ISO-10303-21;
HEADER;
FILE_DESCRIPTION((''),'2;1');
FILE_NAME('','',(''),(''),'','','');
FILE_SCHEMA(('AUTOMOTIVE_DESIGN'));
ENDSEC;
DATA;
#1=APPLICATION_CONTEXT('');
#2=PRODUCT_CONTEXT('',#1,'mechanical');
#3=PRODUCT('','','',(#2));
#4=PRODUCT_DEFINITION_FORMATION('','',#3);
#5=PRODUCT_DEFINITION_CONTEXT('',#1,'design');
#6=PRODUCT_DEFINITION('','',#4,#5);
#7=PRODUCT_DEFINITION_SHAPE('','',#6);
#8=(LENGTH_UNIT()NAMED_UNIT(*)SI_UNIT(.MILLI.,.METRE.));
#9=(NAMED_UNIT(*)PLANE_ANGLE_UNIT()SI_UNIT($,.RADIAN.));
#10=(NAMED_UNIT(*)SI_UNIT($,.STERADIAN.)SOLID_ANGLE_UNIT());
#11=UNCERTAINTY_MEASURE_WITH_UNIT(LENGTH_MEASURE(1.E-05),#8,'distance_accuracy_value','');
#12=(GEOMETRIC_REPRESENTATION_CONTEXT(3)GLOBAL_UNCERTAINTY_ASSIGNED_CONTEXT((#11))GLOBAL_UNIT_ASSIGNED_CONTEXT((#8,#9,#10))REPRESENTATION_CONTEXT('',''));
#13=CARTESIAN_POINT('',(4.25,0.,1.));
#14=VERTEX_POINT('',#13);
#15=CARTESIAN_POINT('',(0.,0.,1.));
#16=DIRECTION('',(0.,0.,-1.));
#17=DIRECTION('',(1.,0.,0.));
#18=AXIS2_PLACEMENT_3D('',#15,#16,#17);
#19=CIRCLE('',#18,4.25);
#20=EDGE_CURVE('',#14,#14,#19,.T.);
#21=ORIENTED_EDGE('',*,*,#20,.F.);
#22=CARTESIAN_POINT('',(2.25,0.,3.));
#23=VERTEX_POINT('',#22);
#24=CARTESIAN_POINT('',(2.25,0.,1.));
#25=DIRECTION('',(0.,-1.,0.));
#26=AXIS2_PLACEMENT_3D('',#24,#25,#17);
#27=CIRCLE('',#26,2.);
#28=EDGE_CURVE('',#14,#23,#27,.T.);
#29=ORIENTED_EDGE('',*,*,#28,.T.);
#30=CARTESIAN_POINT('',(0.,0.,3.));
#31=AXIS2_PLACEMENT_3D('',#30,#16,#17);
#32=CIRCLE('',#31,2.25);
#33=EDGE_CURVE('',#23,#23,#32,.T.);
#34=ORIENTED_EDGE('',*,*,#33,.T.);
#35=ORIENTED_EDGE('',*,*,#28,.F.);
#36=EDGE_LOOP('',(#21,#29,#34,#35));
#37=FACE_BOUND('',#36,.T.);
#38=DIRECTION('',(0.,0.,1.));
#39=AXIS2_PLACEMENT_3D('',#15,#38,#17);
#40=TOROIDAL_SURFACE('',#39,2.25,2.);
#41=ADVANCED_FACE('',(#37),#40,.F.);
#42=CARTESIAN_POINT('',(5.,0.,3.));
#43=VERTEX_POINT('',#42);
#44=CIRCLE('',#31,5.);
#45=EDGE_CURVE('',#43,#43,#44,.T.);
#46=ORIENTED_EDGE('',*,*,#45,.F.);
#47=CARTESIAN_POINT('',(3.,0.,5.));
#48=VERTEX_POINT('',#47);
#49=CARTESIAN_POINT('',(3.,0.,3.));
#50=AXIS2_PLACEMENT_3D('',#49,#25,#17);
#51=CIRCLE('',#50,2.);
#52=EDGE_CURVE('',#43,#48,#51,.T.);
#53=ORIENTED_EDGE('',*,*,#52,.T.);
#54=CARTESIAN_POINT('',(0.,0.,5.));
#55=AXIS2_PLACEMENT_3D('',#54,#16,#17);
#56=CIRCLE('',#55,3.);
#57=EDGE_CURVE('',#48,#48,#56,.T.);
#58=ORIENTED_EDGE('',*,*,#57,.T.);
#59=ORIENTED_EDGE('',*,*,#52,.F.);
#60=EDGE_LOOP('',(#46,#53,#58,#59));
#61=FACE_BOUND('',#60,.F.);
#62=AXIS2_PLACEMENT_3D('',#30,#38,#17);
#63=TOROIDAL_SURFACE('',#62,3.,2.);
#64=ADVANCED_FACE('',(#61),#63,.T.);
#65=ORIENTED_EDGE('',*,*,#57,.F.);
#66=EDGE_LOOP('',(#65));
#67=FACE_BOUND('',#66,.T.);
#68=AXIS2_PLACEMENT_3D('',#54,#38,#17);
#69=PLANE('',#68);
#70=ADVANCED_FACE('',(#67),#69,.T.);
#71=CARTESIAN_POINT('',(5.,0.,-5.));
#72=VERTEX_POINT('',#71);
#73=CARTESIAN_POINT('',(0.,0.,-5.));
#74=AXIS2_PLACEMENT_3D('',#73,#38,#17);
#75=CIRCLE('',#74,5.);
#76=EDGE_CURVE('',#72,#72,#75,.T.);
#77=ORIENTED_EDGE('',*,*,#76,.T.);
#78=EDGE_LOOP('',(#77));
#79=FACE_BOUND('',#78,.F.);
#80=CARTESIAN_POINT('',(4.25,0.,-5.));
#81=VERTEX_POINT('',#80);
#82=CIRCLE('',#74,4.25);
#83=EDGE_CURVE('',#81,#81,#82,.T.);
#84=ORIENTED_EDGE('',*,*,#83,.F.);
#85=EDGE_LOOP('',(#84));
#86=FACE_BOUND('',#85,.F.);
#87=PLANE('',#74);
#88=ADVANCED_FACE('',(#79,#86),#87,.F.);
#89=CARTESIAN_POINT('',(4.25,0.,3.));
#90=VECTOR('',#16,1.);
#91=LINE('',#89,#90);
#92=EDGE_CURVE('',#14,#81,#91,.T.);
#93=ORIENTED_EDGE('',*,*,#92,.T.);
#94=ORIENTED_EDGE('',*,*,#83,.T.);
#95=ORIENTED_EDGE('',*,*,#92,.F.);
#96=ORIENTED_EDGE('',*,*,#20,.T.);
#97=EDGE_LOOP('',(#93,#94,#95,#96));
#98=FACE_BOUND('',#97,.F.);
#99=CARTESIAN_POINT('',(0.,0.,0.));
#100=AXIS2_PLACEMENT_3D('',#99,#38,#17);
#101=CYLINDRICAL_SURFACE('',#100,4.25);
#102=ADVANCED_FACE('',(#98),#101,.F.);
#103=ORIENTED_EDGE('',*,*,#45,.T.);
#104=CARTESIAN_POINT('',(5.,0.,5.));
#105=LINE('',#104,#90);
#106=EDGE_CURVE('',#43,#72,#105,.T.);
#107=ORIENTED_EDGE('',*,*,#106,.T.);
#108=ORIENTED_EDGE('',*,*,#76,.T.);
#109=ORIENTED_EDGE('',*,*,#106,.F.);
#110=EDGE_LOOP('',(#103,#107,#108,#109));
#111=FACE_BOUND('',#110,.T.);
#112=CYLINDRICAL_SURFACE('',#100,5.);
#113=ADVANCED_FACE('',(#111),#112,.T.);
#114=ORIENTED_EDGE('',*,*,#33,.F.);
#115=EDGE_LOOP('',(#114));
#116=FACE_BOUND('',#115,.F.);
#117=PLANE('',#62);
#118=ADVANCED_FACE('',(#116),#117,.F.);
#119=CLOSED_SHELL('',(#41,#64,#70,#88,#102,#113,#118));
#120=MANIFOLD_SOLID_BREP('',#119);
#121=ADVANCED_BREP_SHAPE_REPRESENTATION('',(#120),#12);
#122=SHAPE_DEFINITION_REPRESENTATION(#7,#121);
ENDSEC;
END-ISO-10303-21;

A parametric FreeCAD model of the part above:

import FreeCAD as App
import Part
import Sketcher


def edges_at(feature, points):
    """Names of the edges that pass closest to the given points."""
    edges = feature.Shape.Edges
    near = lambda p: min(range(len(edges)), key=lambda i: edges[i].distToShape(Part.Vertex(*p))[0])
    return sorted({f"Edge{near(p) + 1}" for p in points})

doc = App.newDocument("Part")
body = doc.addObject("PartDesign::Body", "Body")

# Sketch on XY plane
sketch1 = body.newObject("Sketcher::SketchObject", "Sketch")
sketch1.AttachmentSupport = (doc.getObject("XY_Plane"), [""])
sketch1.MapMode = "FlatFace"
sketch1.addGeometry(Part.Circle(App.Vector(0, 0, 0), App.Vector(0, 0, 1), 5), False)
sketch1.addGeometry(Part.Circle(App.Vector(0, 0, 0), App.Vector(0, 0, 1), 4.2), False)
sketch1.addConstraint(Sketcher.Constraint("Coincident", 0, 3, -1, 1))
sketch1.addConstraint(Sketcher.Constraint("Coincident", 1, 3, -1, 1))
sketch1.addConstraint(Sketcher.Constraint("Diameter", 0, 10.0))
sketch1.addConstraint(Sketcher.Constraint("Diameter", 1, 8.5))
pad1 = body.newObject("PartDesign::Pad", "Pad")
pad1.Profile = sketch1
pad1.Length = 10
pad1.Midplane = True

# Sketch on XY plane
sketch2 = body.newObject("Sketcher::SketchObject", "Sketch001")
sketch2.AttachmentSupport = (doc.getObject("XY_Plane"), [""])
sketch2.MapMode = "FlatFace"
sketch2.AttachmentOffset = App.Placement(App.Vector(0, 0, 5), App.Rotation())
sketch2.addGeometry(Part.Circle(App.Vector(0, 0, 0), App.Vector(0, 0, 1), 5), False)
sketch2.addConstraint(Sketcher.Constraint("Coincident", 0, 3, -1, 1))
sketch2.addConstraint(Sketcher.Constraint("Diameter", 0, 10.0))
pad2 = body.newObject("PartDesign::Pad", "Pad001")
pad2.Profile = sketch2
pad2.Length = 2
pad2.Reversed = True
doc.recompute()

fillet = body.newObject("PartDesign::Fillet", "Fillet")
fillet.Base = (pad2, edges_at(pad2, [(-4.25, 0, 3)]))
fillet.Radius = 2
doc.recompute()

fillet2 = body.newObject("PartDesign::Fillet", "Fillet001")
fillet2.Base = (fillet, edges_at(fillet, [(-5, 0, 5)]))
fillet2.Radius = 2

doc.recompute()
